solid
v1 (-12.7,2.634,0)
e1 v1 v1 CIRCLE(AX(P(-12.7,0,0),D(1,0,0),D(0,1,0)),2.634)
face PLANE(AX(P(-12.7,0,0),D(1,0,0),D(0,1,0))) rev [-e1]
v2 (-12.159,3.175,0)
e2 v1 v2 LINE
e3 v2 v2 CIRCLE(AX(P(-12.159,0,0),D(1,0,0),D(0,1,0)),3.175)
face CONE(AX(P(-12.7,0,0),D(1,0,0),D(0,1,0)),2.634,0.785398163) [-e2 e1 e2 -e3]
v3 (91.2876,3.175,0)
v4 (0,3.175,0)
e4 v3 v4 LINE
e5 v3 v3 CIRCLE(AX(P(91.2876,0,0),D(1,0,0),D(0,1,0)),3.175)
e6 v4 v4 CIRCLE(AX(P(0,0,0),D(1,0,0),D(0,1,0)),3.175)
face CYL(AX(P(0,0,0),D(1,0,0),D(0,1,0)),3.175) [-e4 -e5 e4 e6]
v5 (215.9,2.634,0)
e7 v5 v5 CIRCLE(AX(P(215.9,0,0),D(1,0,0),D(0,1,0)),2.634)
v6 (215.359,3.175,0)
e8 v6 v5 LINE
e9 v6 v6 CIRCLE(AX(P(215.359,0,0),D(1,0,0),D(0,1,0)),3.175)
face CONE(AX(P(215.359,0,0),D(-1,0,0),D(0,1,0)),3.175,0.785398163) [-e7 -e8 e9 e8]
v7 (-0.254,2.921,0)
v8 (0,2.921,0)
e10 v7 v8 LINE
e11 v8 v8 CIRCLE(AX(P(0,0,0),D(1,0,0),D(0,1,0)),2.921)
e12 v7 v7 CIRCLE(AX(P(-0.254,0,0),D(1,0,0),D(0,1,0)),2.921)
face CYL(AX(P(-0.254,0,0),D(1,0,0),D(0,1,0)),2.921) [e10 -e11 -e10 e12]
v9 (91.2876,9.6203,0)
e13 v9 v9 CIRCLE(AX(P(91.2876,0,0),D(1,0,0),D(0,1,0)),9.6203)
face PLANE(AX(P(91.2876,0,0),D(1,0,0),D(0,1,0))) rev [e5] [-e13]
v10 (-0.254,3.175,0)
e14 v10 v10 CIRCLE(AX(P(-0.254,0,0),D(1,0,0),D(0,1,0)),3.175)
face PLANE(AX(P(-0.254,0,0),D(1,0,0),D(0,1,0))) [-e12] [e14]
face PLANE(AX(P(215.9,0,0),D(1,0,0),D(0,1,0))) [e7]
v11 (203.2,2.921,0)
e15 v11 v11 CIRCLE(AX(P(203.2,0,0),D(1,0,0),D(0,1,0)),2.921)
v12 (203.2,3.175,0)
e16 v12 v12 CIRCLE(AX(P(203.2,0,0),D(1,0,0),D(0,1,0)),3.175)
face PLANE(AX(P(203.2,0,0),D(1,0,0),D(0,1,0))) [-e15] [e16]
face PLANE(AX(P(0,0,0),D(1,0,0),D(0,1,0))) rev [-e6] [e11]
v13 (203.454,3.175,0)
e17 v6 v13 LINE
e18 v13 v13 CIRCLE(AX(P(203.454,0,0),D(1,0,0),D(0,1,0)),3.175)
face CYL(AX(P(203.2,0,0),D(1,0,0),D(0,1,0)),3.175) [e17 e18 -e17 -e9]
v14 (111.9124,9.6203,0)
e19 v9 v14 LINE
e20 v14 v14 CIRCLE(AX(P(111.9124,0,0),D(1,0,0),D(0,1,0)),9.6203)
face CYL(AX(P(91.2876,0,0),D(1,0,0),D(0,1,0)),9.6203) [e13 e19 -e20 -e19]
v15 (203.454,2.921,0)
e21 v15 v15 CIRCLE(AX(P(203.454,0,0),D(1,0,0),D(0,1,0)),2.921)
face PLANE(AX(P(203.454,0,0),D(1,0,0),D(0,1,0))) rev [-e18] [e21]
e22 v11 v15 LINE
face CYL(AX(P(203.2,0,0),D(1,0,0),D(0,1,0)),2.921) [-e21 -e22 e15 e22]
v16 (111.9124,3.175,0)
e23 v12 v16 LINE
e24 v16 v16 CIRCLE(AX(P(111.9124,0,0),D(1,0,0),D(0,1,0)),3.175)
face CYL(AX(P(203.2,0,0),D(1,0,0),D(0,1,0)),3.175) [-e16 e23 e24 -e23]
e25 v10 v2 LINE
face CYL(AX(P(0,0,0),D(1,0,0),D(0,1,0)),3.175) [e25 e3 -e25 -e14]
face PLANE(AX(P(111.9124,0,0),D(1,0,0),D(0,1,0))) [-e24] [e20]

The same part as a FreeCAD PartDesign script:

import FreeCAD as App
import Part
import Sketcher
from FreeCAD import Vector
Q = App.Units.Quantity

doc = App.newDocument("Part")
body = doc.addObject("PartDesign::Body", "Body")

# Sketch on XY plane
sketch1 = doc.addObject("Sketcher::SketchObject", "Sketch")
body.addObject(sketch1)
sketch1.AttachmentSupport = (doc.XY_Plane, [""])
sketch1.MapMode = "FlatFace"
sketch1.addGeometry(Part.LineSegment(Vector(0, 0, 0), Vector(111.9, 0, 0)), False)
sketch1.addGeometry(Part.LineSegment(Vector(111.9, 0, 0), Vector(111.9, 9.6, 0)), False)
sketch1.addGeometry(Part.LineSegment(Vector(111.9, 9.6, 0), Vector(91.3, 9.6, 0)), False)
sketch1.addGeometry(Part.LineSegment(Vector(91.3, 9.6, 0), Vector(91.3, 3.2, 0)), False)
sketch1.addGeometry(Part.LineSegment(Vector(91.3, 3.2, 0), Vector(0, 3.2, 0)), False)
sketch1.addGeometry(Part.LineSegment(Vector(0, 3.2, 0), Vector(0, 0, 0)), False)
sketch1.addConstraint(Sketcher.Constraint("Coincident", 0, 2, 1, 1))
sketch1.addConstraint(Sketcher.Constraint("Coincident", 1, 2, 2, 1))
sketch1.addConstraint(Sketcher.Constraint("Coincident", 2, 2, 3, 1))
sketch1.addConstraint(Sketcher.Constraint("Coincident", 3, 2, 4, 1))
sketch1.addConstraint(Sketcher.Constraint("Coincident", 4, 2, 5, 1))
sketch1.addConstraint(Sketcher.Constraint("Coincident", 5, 2, 0, 1))
sketch1.addConstraint(Sketcher.Constraint("Horizontal", 0))
sketch1.addConstraint(Sketcher.Constraint("Vertical", 1))
sketch1.addConstraint(Sketcher.Constraint("Horizontal", 2))
sketch1.addConstraint(Sketcher.Constraint("Vertical", 3))
sketch1.addConstraint(Sketcher.Constraint("Horizontal", 4))
sketch1.addConstraint(Sketcher.Constraint("Vertical", 5))
sketch1.addConstraint(Sketcher.Constraint("Coincident", 5, 2, -1, 1))
sketch1.addConstraint(Sketcher.Constraint("DistanceX", 0, 1, 0, 2, Q("4.406 in")))
sketch1.addConstraint(Sketcher.Constraint("DistanceX", 2, 2, 2, 1, Q("0.812 in")))
sketch1.addConstraint(Sketcher.Constraint("DistanceY", 5, 2, 5, 1, Q("0.125 in")))
sketch1.addConstraint(Sketcher.Constraint("DistanceY", 1, 1, 1, 2, Q("9.6203 mm")))
revolution = doc.addObject("PartDesign::Revolution", "Revolution")
body.addObject(revolution)
revolution.Profile = sketch1
revolution.ReferenceAxis = (sketch1, ["H_Axis"])
revolution.Angle = 360

# Sketch on XY plane
sketch2 = doc.addObject("Sketcher::SketchObject", "Sketch001")
body.addObject(sketch2)
sketch2.AttachmentSupport = (doc.XY_Plane, [""])
sketch2.MapMode = "FlatFace"
sketch2.addGeometry(Part.LineSegment(Vector(-12.7, 0, 0), Vector(0, 0, 0)), False)
sketch2.addGeometry(Part.LineSegment(Vector(0, 0, 0), Vector(0, 3.2, 0)), False)
sketch2.addGeometry(Part.LineSegment(Vector(0, 3.2, 0), Vector(-12.2, 3.2, 0)), False)
sketch2.addGeometry(Part.LineSegment(Vector(-12.2, 3.2, 0), Vector(-12.7, 2.6, 0)), False)
sketch2.addGeometry(Part.LineSegment(Vector(-12.7, 2.6, 0), Vector(-12.7, 0, 0)), False)
sketch2.addConstraint(Sketcher.Constraint("Coincident", 0, 2, 1, 1))
sketch2.addConstraint(Sketcher.Constraint("Coincident", 1, 2, 2, 1))
sketch2.addConstraint(Sketcher.Constraint("Coincident", 2, 2, 3, 1))
sketch2.addConstraint(Sketcher.Constraint("Coincident", 3, 2, 4, 1))
sketch2.addConstraint(Sketcher.Constraint("Coincident", 4, 2, 0, 1))
sketch2.addConstraint(Sketcher.Constraint("Horizontal", 0))
sketch2.addConstraint(Sketcher.Constraint("Vertical", 1))
sketch2.addConstraint(Sketcher.Constraint("Horizontal", 2))
sketch2.addConstraint(Sketcher.Constraint("Vertical", 4))
sketch2.addConstraint(Sketcher.Constraint("Coincident", 0, 2, -1, 1))
sketch2.addConstraint(Sketcher.Constraint("DistanceX", 0, 1, 0, 2, Q("0.5 in")))
sketch2.addConstraint(Sketcher.Constraint("Angle", 3, Q("-135 deg")))
sketch2.addConstraint(Sketcher.Constraint("DistanceY", 1, 1, 1, 2, Q("0.125 in")))
sketch2.addConstraint(Sketcher.Constraint("DistanceX", 2, 2, 2, 1, Q("0.4787 in")))
revolution2 = doc.addObject("PartDesign::Revolution", "Revolution001")
body.addObject(revolution2)
revolution2.Profile = sketch2
revolution2.ReferenceAxis = (sketch2, ["H_Axis"])
revolution2.Angle = 360

# Sketch on XY plane
sketch3 = doc.addObject("Sketcher::SketchObject", "Sketch002")
body.addObject(sketch3)
sketch3.AttachmentSupport = (doc.XY_Plane, [""])
sketch3.MapMode = "FlatFace"
sketch3.addGeometry(Part.LineSegment(Vector(111.9, 0, 0), Vector(203.2, 0, 0)), False)
sketch3.addGeometry(Part.LineSegment(Vector(203.2, 0, 0), Vector(203.2, 3.2, 0)), False)
sketch3.addGeometry(Part.LineSegment(Vector(203.2, 3.2, 0), Vector(111.9, 3.2, 0)), False)
sketch3.addGeometry(Part.LineSegment(Vector(111.9, 3.2, 0), Vector(111.9, 0, 0)), False)
sketch3.addConstraint(Sketcher.Constraint("Coincident", 0, 2, 1, 1))
sketch3.addConstraint(Sketcher.Constraint("Coincident", 1, 2, 2, 1))
sketch3.addConstraint(Sketcher.Constraint("Coincident", 2, 2, 3, 1))
sketch3.addConstraint(Sketcher.Constraint("Coincident", 3, 2, 0, 1))
sketch3.addConstraint(Sketcher.Constraint("Horizontal", 0))
sketch3.addConstraint(Sketcher.Constraint("Vertical", 1))
sketch3.addConstraint(Sketcher.Constraint("Horizontal", 2))
sketch3.addConstraint(Sketcher.Constraint("Vertical", 3))
sketch3.addConstraint(Sketcher.Constraint("PointOnObject", 0, 2, -1))
sketch3.addConstraint(Sketcher.Constraint("DistanceX", -1, 1, 0, 2, Q("8 in")))
sketch3.addConstraint(Sketcher.Constraint("DistanceX", 0, 1, 0, 2, Q("3.594 in")))
sketch3.addConstraint(Sketcher.Constraint("DistanceY", 1, 1, 1, 2, Q("0.125 in")))
revolution3 = doc.addObject("PartDesign::Revolution", "Revolution002")
body.addObject(revolution3)
revolution3.Profile = sketch3
revolution3.ReferenceAxis = (sketch3, ["H_Axis"])
revolution3.Angle = 360

# Sketch on XY plane
sketch4 = doc.addObject("Sketcher::SketchObject", "Sketch003")
body.addObject(sketch4)
sketch4.AttachmentSupport = (doc.XY_Plane, [""])
sketch4.MapMode = "FlatFace"
sketch4.addGeometry(Part.LineSegment(Vector(203.2, 0, 0), Vector(215.9, 0, 0)), False)
sketch4.addGeometry(Part.LineSegment(Vector(215.9, 0, 0), Vector(215.9, 2.6, 0)), False)
sketch4.addGeometry(Part.LineSegment(Vector(215.9, 2.6, 0), Vector(215.4, 3.2, 0)), False)
sketch4.addGeometry(Part.LineSegment(Vector(215.4, 3.2, 0), Vector(203.2, 3.2, 0)), False)
sketch4.addGeometry(Part.LineSegment(Vector(203.2, 3.2, 0), Vector(203.2, 0, 0)), False)
sketch4.addConstraint(Sketcher.Constraint("Coincident", 0, 2, 1, 1))
sketch4.addConstraint(Sketcher.Constraint("Coincident", 1, 2, 2, 1))
sketch4.addConstraint(Sketcher.Constraint("Coincident", 2, 2, 3, 1))
sketch4.addConstraint(Sketcher.Constraint("Coincident", 3, 2, 4, 1))
sketch4.addConstraint(Sketcher.Constraint("Coincident", 4, 2, 0, 1))
sketch4.addConstraint(Sketcher.Constraint("Horizontal", 0))
sketch4.addConstraint(Sketcher.Constraint("Vertical", 1))
sketch4.addConstraint(Sketcher.Constraint("Horizontal", 3))
sketch4.addConstraint(Sketcher.Constraint("Vertical", 4))
sketch4.addConstraint(Sketcher.Constraint("PointOnObject", 0, 2, -1))
sketch4.addConstraint(Sketcher.Constraint("DistanceX", 0, 1, 0, 2, Q("0.5 in")))
sketch4.addConstraint(Sketcher.Constraint("DistanceX", -1, 1, 3, 2, Q("8 in")))
sketch4.addConstraint(Sketcher.Constraint("Angle", 2, Q("135 deg")))
sketch4.addConstraint(Sketcher.Constraint("DistanceY", 4, 2, 4, 1, Q("0.125 in")))
sketch4.addConstraint(Sketcher.Constraint("DistanceX", 3, 2, 3, 1, Q("0.4787 in")))
revolution4 = doc.addObject("PartDesign::Revolution", "Revolution003")
body.addObject(revolution4)
revolution4.Profile = sketch4
revolution4.ReferenceAxis = (sketch4, ["H_Axis"])
revolution4.Angle = 360

# Sketch on XY plane
sketch5 = doc.addObject("Sketcher::SketchObject", "Sketch004")
body.addObject(sketch5)
sketch5.AttachmentSupport = (doc.XY_Plane, [""])
sketch5.MapMode = "FlatFace"
sketch5.addGeometry(Part.LineSegment(Vector(0, 3.43, 0), Vector(-0.25, 3.43, 0)), False)
sketch5.addGeometry(Part.LineSegment(Vector(-0.25, 3.43, 0), Vector(-0.25, 2.92, 0)), False)
sketch5.addGeometry(Part.LineSegment(Vector(-0.25, 2.92, 0), Vector(0, 2.92, 0)), False)
sketch5.addGeometry(Part.LineSegment(Vector(0, 2.92, 0), Vector(0, 3.43, 0)), False)
sketch5.addConstraint(Sketcher.Constraint("Coincident", 0, 2, 1, 1))
sketch5.addConstraint(Sketcher.Constraint("Coincident", 1, 2, 2, 1))
sketch5.addConstraint(Sketcher.Constraint("Coincident", 2, 2, 3, 1))
sketch5.addConstraint(Sketcher.Constraint("Coincident", 3, 2, 0, 1))
sketch5.addConstraint(Sketcher.Constraint("Horizontal", 0))
sketch5.addConstraint(Sketcher.Constraint("Vertical", 1))
sketch5.addConstraint(Sketcher.Constraint("Horizontal", 2))
sketch5.addConstraint(Sketcher.Constraint("Vertical", 3))
sketch5.addConstraint(Sketcher.Constraint("PointOnObject", 2, 2, -2))
sketch5.addConstraint(Sketcher.Constraint("DistanceX", 0, 2, 0, 1, Q("0.01 in")))
sketch5.addConstraint(Sketcher.Constraint("DistanceY", 1, 2, 1, 1, Q("0.02 in")))
sketch5.addConstraint(Sketcher.Constraint("DistanceY", -1, 1, 0, 2, Q("0.135 in")))
groove = doc.addObject("PartDesign::Groove", "Groove")
body.addObject(groove)
groove.Profile = sketch5
groove.ReferenceAxis = (sketch5, ["H_Axis"])
groove.Angle = 360

# Sketch on XY plane
sketch6 = doc.addObject("Sketcher::SketchObject", "Sketch005")
body.addObject(sketch6)
sketch6.AttachmentSupport = (doc.XY_Plane, [""])
sketch6.MapMode = "FlatFace"
sketch6.addGeometry(Part.LineSegment(Vector(203.45, 3.43, 0), Vector(203.2, 3.43, 0)), False)
sketch6.addGeometry(Part.LineSegment(Vector(203.2, 3.43, 0), Vector(203.2, 2.92, 0)), False)
sketch6.addGeometry(Part.LineSegment(Vector(203.2, 2.92, 0), Vector(203.45, 2.92, 0)), False)
sketch6.addGeometry(Part.LineSegment(Vector(203.45, 2.92, 0), Vector(203.45, 3.43, 0)), False)
sketch6.addConstraint(Sketcher.Constraint("Coincident", 0, 2, 1, 1))
sketch6.addConstraint(Sketcher.Constraint("Coincident", 1, 2, 2, 1))
sketch6.addConstraint(Sketcher.Constraint("Coincident", 2, 2, 3, 1))
sketch6.addConstraint(Sketcher.Constraint("Coincident", 3, 2, 0, 1))
sketch6.addConstraint(Sketcher.Constraint("Horizontal", 0))
sketch6.addConstraint(Sketcher.Constraint("Vertical", 1))
sketch6.addConstraint(Sketcher.Constraint("Horizontal", 2))
sketch6.addConstraint(Sketcher.Constraint("Vertical", 3))
sketch6.addConstraint(Sketcher.Constraint("DistanceX", -1, 1, 0, 2, Q("8 in")))
sketch6.addConstraint(Sketcher.Constraint("DistanceX", 0, 2, 0, 1, Q("0.01 in")))
sketch6.addConstraint(Sketcher.Constraint("DistanceY", 1, 2, 1, 1, Q("0.02 in")))
sketch6.addConstraint(Sketcher.Constraint("DistanceY", -1, 1, 0, 2, Q("0.135 in")))
groove2 = doc.addObject("PartDesign::Groove", "Groove001")
body.addObject(groove2)
groove2.Profile = sketch6
groove2.ReferenceAxis = (sketch6, ["H_Axis"])
groove2.Angle = 360

doc.recompute()
